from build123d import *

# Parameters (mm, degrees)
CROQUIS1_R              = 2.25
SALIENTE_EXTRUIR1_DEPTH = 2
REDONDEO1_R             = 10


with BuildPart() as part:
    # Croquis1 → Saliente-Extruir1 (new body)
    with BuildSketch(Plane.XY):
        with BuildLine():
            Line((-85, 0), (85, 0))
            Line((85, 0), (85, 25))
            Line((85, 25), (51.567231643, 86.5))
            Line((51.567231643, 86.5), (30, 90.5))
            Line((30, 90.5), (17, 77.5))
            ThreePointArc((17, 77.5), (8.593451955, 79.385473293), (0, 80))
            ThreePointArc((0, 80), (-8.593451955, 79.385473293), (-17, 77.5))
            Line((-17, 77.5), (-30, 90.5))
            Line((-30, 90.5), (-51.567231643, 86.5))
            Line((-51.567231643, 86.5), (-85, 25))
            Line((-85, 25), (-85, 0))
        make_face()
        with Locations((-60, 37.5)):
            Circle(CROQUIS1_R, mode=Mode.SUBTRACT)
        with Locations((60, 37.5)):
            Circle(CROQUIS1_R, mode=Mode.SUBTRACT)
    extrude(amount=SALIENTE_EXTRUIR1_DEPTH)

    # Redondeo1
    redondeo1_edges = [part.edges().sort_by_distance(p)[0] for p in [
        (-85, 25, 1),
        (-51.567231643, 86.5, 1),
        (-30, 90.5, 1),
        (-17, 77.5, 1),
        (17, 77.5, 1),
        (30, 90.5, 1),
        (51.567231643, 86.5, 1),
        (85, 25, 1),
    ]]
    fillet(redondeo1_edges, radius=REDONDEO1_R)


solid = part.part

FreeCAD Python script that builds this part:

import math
import FreeCAD as App
import Part
import Sketcher

V = App.Vector


def edges_at(feature, points):
    """Names of the edges that pass closest to the given points."""
    edges = feature.Shape.Edges
    near = lambda p: min(range(len(edges)), key=lambda i: edges[i].distToShape(Part.Vertex(*p))[0])
    return sorted({f"Edge{near(p) + 1}" for p in points})

doc = App.newDocument("Part")
body = doc.addObject("PartDesign::Body", "Body")

sketch1 = body.newObject("Sketcher::SketchObject", "Sketch")
sketch1.AttachmentSupport = (doc.getObject("XY_Plane"), [""])
sketch1.MapMode = "FlatFace"
sketch1.addGeometry([
    Part.LineSegment(V(-85, 0, 0), V(85, 0, 0)),
    Part.LineSegment(V(85, 0, 0), V(85, 25, 0)),
    Part.LineSegment(V(85, 25, 0), V(51.6, 86.5, 0)),
    Part.LineSegment(V(51.6, 86.5, 0), V(30, 90.5, 0)),
    Part.LineSegment(V(30, 90.5, 0), V(17, 77.5, 0)),
    Part.ArcOfCircle(Part.Circle(V(0.2, 22.2, 0), V(0, 0, 1), 57.8), math.radians(73.08), math.radians(90.19)),
    Part.ArcOfCircle(Part.Circle(V(-0.2, 22.2, 0), V(0, 0, 1), 57.8), math.radians(89.81), math.radians(106.92)),
    Part.LineSegment(V(-17, 77.5, 0), V(-30, 90.5, 0)),
    Part.LineSegment(V(-30, 90.5, 0), V(-51.6, 86.5, 0)),
    Part.LineSegment(V(-51.6, 86.5, 0), V(-85, 25, 0)),
    Part.LineSegment(V(-85, 25, 0), V(-85, 0, 0)),
    Part.Circle(V(-60, 37.5, 0), V(0, 0, 1), 2.2),
    Part.Circle(V(60, 37.5, 0), V(0, 0, 1), 2.2),
], False)
sketch1.addConstraint([
    Sketcher.Constraint("Coincident", 0, 2, 1, 1),
    Sketcher.Constraint("Coincident", 1, 2, 2, 1),
    Sketcher.Constraint("Coincident", 2, 2, 3, 1),
    Sketcher.Constraint("Coincident", 3, 2, 4, 1),
    Sketcher.Constraint("Coincident", 4, 2, 5, 1),
    Sketcher.Constraint("Coincident", 5, 2, 6, 1),
    Sketcher.Constraint("Coincident", 6, 2, 7, 1),
    Sketcher.Constraint("Coincident", 7, 2, 8, 1),
    Sketcher.Constraint("Coincident", 8, 2, 9, 1),
    Sketcher.Constraint("Coincident", 9, 2, 10, 1),
    Sketcher.Constraint("Coincident", 10, 2, 0, 1),
    Sketcher.Constraint("Horizontal", 0),
    Sketcher.Constraint("Vertical", 1),
    Sketcher.Constraint("Vertical", 10),
    Sketcher.Constraint("Equal", 5, 6),
    Sketcher.Constraint("Equal", 11, 12),
    Sketcher.Constraint("Symmetric", 0, 2, 10, 2, -1, 1),
    Sketcher.Constraint("Symmetric", 5, 3, 6, 3, -2),
    Sketcher.Constraint("Symmetric", 11, 3, 12, 3, -2),
    Sketcher.Constraint("Symmetric", 3, 2, 7, 2, -2),
    Sketcher.Constraint("Symmetric", 2, 2, 8, 2, -2),
    Sketcher.Constraint("Perpendicular", 4, 7),
    Sketcher.Constraint("Horizontal", 4, 2, 6, 2),
    Sketcher.Constraint("Horizontal", 1, 2, 9, 2),
    Sketcher.Constraint("Diameter", 11, 4.5),
    Sketcher.Constraint("DistanceX", 0, 1, 0, 2, 170.0),
    Sketcher.Constraint("DistanceY", 1, 1, 1, 2, 25.0),
    Sketcher.Constraint("Distance", 2, 70.0),
    Sketcher.Constraint("DistanceX", 11, 3, -1, 1, 60.0),
    Sketcher.Constraint("DistanceX", -1, 1, 3, 2, 30.0),
    Sketcher.Constraint("DistanceX", -1, 1, 4, 2, 17.0),
    Sketcher.Constraint("DistanceY", -1, 1, 5, 2, 80.0),
    Sketcher.Constraint("DistanceY", 12, 3, 2, 2, 49.0),
    Sketcher.Constraint("DistanceY", 2, 2, 3, 2, 4.0),
    Sketcher.Constraint("DistanceY", -1, 1, 11, 3, 37.5),
    Sketcher.Constraint("Radius", 5, 57.779958),
])
pad1 = body.newObject("PartDesign::Pad", "Pad")
pad1.Profile = sketch1
pad1.Length = 2
doc.recompute()

fillet = body.newObject("PartDesign::Fillet", "Fillet")
fillet.Base = (pad1, edges_at(pad1, [
    (-85, 25, 1),
    (-51.567, 86.5, 1),
    (-30, 90.5, 1),
    (-17, 77.5, 1),
    (17, 77.5, 1),
    (30, 90.5, 1),
    (51.567, 86.5, 1),
    (85, 25, 1),
]))
fillet.Radius = 10

doc.recompute()
